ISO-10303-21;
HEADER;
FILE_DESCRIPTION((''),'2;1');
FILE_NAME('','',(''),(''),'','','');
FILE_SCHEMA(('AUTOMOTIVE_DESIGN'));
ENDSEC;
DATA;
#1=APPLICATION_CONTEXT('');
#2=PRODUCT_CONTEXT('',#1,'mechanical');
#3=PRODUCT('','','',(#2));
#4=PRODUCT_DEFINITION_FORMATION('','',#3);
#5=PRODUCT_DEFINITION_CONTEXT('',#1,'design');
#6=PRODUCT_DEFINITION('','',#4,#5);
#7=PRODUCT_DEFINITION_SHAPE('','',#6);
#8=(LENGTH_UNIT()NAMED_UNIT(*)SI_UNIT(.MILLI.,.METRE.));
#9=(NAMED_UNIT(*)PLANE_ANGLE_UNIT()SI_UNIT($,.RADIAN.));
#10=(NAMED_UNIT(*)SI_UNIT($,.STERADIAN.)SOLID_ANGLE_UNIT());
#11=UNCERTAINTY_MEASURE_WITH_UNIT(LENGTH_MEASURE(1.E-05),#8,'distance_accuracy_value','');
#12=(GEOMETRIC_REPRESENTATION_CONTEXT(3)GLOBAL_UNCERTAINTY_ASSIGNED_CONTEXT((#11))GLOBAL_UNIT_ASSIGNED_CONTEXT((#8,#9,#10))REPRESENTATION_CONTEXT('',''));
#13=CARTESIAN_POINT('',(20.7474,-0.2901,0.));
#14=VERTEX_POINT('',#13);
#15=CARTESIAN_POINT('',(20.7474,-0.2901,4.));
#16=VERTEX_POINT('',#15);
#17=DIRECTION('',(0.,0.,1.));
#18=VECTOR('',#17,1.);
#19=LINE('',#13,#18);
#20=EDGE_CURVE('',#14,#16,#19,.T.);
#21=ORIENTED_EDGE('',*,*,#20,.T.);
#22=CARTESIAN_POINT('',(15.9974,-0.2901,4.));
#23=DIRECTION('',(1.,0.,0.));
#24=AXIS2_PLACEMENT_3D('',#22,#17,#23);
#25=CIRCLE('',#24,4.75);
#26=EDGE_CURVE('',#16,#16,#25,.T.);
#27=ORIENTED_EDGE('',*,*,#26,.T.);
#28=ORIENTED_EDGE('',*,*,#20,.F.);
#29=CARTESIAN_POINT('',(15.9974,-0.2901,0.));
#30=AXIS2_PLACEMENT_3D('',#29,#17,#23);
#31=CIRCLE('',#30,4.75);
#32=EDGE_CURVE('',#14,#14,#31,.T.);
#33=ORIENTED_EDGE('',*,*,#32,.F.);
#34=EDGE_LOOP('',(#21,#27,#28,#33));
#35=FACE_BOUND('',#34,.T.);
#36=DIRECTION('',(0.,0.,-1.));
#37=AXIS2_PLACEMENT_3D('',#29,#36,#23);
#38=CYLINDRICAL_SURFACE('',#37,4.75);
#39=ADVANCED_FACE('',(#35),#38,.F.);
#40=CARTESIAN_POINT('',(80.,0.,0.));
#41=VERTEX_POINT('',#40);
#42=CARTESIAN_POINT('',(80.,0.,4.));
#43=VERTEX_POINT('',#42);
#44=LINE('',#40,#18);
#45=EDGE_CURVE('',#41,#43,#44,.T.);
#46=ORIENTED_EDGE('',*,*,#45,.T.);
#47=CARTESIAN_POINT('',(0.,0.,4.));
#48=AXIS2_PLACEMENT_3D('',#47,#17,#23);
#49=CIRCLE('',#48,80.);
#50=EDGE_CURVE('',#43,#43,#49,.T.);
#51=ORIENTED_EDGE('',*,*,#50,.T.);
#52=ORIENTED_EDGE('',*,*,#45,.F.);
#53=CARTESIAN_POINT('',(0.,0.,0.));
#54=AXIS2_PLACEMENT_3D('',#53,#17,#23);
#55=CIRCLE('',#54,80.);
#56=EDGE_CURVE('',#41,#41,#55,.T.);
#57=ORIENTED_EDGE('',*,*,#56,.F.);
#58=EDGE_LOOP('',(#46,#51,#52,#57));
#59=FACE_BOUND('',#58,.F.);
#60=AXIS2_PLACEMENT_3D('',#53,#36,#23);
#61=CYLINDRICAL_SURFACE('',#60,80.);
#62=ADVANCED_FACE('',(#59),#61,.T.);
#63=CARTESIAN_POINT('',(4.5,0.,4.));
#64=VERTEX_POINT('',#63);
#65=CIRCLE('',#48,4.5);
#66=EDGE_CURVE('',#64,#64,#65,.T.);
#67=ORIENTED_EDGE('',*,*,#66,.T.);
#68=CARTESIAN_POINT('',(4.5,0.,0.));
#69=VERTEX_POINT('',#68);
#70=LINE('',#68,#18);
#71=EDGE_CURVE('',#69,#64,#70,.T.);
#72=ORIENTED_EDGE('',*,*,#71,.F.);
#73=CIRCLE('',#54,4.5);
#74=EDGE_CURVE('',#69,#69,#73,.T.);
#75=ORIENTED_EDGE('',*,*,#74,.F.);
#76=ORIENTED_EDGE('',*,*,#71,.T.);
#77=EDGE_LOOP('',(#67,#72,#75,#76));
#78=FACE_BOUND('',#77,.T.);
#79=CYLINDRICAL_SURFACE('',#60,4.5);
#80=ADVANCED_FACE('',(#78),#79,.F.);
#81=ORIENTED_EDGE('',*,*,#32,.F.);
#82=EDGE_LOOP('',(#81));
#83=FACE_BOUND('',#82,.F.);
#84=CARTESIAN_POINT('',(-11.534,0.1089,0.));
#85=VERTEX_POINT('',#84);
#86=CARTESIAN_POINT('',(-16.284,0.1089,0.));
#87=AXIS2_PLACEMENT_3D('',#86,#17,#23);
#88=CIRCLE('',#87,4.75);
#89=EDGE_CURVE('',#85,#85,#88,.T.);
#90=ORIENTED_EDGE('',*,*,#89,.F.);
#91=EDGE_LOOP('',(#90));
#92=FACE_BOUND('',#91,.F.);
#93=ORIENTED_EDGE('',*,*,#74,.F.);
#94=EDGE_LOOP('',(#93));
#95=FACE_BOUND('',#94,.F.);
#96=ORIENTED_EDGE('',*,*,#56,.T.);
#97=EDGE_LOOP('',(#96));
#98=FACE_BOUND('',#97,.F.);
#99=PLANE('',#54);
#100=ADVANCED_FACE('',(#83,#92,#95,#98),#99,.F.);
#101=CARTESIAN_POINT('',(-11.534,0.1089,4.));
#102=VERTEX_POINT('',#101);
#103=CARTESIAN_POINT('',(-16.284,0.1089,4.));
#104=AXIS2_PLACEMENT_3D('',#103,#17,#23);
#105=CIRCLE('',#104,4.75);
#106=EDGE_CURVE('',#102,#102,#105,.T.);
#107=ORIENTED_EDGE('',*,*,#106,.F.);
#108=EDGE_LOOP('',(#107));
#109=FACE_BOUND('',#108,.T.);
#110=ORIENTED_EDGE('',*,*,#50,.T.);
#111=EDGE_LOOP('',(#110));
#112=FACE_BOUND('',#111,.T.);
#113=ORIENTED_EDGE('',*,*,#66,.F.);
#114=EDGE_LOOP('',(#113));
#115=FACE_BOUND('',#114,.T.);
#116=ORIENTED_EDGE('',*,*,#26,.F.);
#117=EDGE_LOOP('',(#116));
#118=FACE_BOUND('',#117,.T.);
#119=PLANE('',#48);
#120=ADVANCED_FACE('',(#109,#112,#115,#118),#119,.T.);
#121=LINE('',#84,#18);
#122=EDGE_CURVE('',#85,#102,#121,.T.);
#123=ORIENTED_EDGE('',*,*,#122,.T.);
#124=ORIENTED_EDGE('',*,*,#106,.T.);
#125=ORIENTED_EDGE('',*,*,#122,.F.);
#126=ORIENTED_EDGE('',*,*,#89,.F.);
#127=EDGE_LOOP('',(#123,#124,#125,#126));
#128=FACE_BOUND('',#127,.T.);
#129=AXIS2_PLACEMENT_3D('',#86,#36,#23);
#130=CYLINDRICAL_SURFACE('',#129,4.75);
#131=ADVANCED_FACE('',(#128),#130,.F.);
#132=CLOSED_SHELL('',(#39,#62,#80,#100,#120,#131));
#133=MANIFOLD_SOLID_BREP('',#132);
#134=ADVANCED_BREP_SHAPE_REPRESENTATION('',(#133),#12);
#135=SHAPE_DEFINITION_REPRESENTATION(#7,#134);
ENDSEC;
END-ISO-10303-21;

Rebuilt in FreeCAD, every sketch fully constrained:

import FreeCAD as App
import Part
import Sketcher

V = App.Vector
Q = App.Units.Quantity

doc = App.newDocument("Part")
body = doc.addObject("PartDesign::Body", "Body")

sketch1 = body.newObject("Sketcher::SketchObject", "Sketch")
sketch1.AttachmentSupport = (doc.getObject("XY_Plane"), [""])
sketch1.MapMode = "FlatFace"
sketch1.addGeometry(Part.Circle(V(0, 0, 0), V(0, 0, 1), 80), False)
sketch1.addGeometry(Part.Circle(V(15.9974, -0.2901, 0), V(0, 0, 1), 4.75), False)
sketch1.addGeometry(Part.Circle(V(-16.284, 0.1089, 0), V(0, 0, 1), 4.75), False)
sketch1.addGeometry(Part.Circle(V(0, 0, 0), V(0, 0, 1), 4.5), False)
sketch1.addConstraint(Sketcher.Constraint("Coincident", 0, 3, -1, 1))
sketch1.addConstraint(Sketcher.Constraint("Coincident", 3, 3, -1, 1))
sketch1.addConstraint(Sketcher.Constraint("Equal", 1, 2))
sketch1.addConstraint(Sketcher.Constraint("Diameter", 0, Q("160 mm")))
sketch1.addConstraint(Sketcher.Constraint("Diameter", 3, Q("9 mm")))
sketch1.addConstraint(Sketcher.Constraint("Diameter", 1, Q("9.5 mm")))
sketch1.addConstraint(Sketcher.Constraint("DistanceY", 1, 3, -1, 1, Q("0.29 mm")))
sketch1.addConstraint(Sketcher.Constraint("DistanceX", 2, 3, -1, 1, Q("16.284 mm")))
sketch1.addConstraint(Sketcher.Constraint("DistanceY", -1, 1, 2, 3, Q("0.109 mm")))
sketch1.addConstraint(Sketcher.Constraint("DistanceX", -1, 1, 1, 3, Q("15.9974 mm")))
pad1 = body.newObject("PartDesign::Pad", "Pad")
pad1.Profile = sketch1
pad1.Length = 4

doc.recompute()
